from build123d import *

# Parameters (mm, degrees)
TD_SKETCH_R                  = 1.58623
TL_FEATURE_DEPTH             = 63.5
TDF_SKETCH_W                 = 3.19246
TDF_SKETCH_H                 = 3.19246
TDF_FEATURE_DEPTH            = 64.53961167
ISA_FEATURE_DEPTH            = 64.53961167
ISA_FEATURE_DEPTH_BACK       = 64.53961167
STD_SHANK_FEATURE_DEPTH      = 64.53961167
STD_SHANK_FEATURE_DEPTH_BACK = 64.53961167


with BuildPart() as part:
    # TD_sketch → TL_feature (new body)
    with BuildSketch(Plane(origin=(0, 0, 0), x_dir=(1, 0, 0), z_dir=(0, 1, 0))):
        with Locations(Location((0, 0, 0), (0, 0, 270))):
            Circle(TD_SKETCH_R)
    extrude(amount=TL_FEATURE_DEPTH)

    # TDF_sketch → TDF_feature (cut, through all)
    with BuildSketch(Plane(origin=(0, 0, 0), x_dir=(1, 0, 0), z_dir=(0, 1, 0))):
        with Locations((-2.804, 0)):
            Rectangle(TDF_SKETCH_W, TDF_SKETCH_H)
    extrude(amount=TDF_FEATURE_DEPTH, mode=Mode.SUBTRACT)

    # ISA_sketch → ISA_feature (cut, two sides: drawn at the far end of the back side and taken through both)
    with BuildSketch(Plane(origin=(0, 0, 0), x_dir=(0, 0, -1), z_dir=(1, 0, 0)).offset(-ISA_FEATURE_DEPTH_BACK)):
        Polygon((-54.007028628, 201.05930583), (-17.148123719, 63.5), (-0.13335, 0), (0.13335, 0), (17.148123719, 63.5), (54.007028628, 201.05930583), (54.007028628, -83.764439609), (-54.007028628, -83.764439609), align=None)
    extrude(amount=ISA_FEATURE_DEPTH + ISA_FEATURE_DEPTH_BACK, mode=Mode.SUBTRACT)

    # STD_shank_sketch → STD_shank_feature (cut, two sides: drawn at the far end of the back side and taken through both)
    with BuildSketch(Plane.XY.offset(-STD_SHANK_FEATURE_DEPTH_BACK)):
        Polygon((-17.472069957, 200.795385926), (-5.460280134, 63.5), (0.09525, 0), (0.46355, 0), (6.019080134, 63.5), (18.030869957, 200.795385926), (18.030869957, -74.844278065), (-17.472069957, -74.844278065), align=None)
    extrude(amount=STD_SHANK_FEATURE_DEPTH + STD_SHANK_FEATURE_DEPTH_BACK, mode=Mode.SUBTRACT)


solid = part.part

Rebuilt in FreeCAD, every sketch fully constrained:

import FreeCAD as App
import Part
import Sketcher
Q = App.Units.Quantity


def add_polygon(sketch, points):
    """Adds a closed chain of lines whose ends are joined by coincident constraints."""
    first, n = sketch.GeometryCount, len(points)
    for a, b in zip(points, points[1:] + points[:1]):
        sketch.addGeometry(Part.LineSegment(App.Vector(*a, 0), App.Vector(*b, 0)), False)
    for i in range(n):
        sketch.addConstraint(Sketcher.Constraint("Coincident", first + i, 2, first + (i + 1) % n, 1))

doc = App.newDocument("Part")
body = doc.addObject("PartDesign::Body", "Body")

# Sketch on XZ plane
sketch1 = body.newObject("Sketcher::SketchObject", "Sketch")
sketch1.AttachmentSupport = (doc.getObject("XZ_Plane"), [""])
sketch1.MapMode = "FlatFace"
sketch1.addGeometry(Part.Circle(App.Vector(0, 0, 0), App.Vector(0, 0, 1), 1.6), False)
sketch1.addConstraint(Sketcher.Constraint("Coincident", 0, 3, -1, 1))
sketch1.addConstraint(Sketcher.Constraint("Diameter", 0, Q("0.1249 in")))
pad1 = body.newObject("PartDesign::Pad", "Pad")
pad1.Profile = sketch1
pad1.Length = Q("2.5 in")
pad1.Reversed = True

# Sketch on XZ plane
sketch2 = body.newObject("Sketcher::SketchObject", "Sketch001")
sketch2.AttachmentSupport = (doc.getObject("XZ_Plane"), [""])
sketch2.MapMode = "FlatFace"
add_polygon(sketch2, [(-4.4, -1.6), (-4.4, 1.6), (-1.2, 1.6), (-1.2, -1.6)])  # lines 0-3
sketch2.addConstraint(Sketcher.Constraint("Vertical", 0))
sketch2.addConstraint(Sketcher.Constraint("Horizontal", 1))
sketch2.addConstraint(Sketcher.Constraint("Vertical", 2))
sketch2.addConstraint(Sketcher.Constraint("Horizontal", 3))
sketch2.addConstraint(Sketcher.Constraint("Equal", 3, 0))
sketch2.addConstraint(Sketcher.Constraint("DistanceX", 1, 1, 1, 2, 3.19246))
sketch2.addConstraint(Sketcher.Constraint("DistanceX", 0, 2, -1, 1, 4.40023))
sketch2.addConstraint(Sketcher.Constraint("DistanceY", -1, 1, 0, 2, 1.59623))
pocket1 = body.newObject("PartDesign::Pocket", "Pocket")
pocket1.Profile = sketch2
pocket1.Type = "ThroughAll"

# Sketch on YZ plane
sketch3 = body.newObject("Sketcher::SketchObject", "Sketch002")
sketch3.AttachmentSupport = (doc.getObject("YZ_Plane"), [""])
sketch3.MapMode = "FlatFace"
add_polygon(sketch3, [(63.5, 17.15), (201.06, 54.01), (-83.76, 54.01), (-83.76, -54.01), (201.06, -54.01), (63.5, -17.15), (0, -0.13), (0, 0.13)])  # lines 0-7
sketch3.addConstraint(Sketcher.Constraint("Horizontal", 1))
sketch3.addConstraint(Sketcher.Constraint("Vertical", 2))
sketch3.addConstraint(Sketcher.Constraint("Horizontal", 3))
sketch3.addConstraint(Sketcher.Constraint("Vertical", 6))
sketch3.addConstraint(Sketcher.Constraint("Symmetric", 5, 2, 6, 2, -1, 1))
sketch3.addConstraint(Sketcher.Constraint("Symmetric", 0, 2, 3, 2, -1))
sketch3.addConstraint(Sketcher.Constraint("Symmetric", 4, 2, 7, 2, -1))
sketch3.addConstraint(Sketcher.Constraint("Parallel", 4, 5))
sketch3.addConstraint(Sketcher.Constraint("Angle", 0, Q("15 deg")))
sketch3.addConstraint(Sketcher.Constraint("DistanceX", -1, 1, 4, 2, Q("2.5 in")))
sketch3.addConstraint(Sketcher.Constraint("DistanceY", 6, 1, 6, 2, Q("0.0105 in")))
sketch3.addConstraint(Sketcher.Constraint("DistanceX", 1, 2, 1, 1, 284.823745))
sketch3.addConstraint(Sketcher.Constraint("DistanceY", 2, 2, 2, 1, 108.014057))
pocket2 = body.newObject("PartDesign::Pocket", "Pocket001")
pocket2.Profile = sketch3
pocket2.Type = "ThroughAll"
pocket2.Midplane = True

# Sketch on XY plane
sketch4 = body.newObject("Sketcher::SketchObject", "Sketch003")
sketch4.AttachmentSupport = (doc.getObject("XY_Plane"), [""])
sketch4.MapMode = "FlatFace"
add_polygon(sketch4, [(-5.46, 63.5), (-17.47, 200.8), (-17.47, -74.84), (18.03, -74.84), (18.03, 200.8), (6.02, 63.5), (0.46, 0), (0.1, 0)])  # lines 0-7
sketch4.addConstraint(Sketcher.Constraint("Vertical", 1))
sketch4.addConstraint(Sketcher.Constraint("Horizontal", 2))
sketch4.addConstraint(Sketcher.Constraint("Vertical", 3))
sketch4.addConstraint(Sketcher.Constraint("Horizontal", 6))
sketch4.addConstraint(Sketcher.Constraint("PointOnObject", 5, 2, -1))
sketch4.addConstraint(Sketcher.Constraint("Parallel", 4, 5))
sketch4.addConstraint(Sketcher.Constraint("Parallel", 0, 7))
sketch4.addConstraint(Sketcher.Constraint("Horizontal", 0, 2, 3, 2))
sketch4.addConstraint(Sketcher.Constraint("Horizontal", 4, 2, 7, 2))
sketch4.addConstraint(Sketcher.Constraint("Equal", 0, 4))
sketch4.addConstraint(Sketcher.Constraint("Angle", 0, Q("95 deg")))
sketch4.addConstraint(Sketcher.Constraint("DistanceY", -1, 1, 4, 2, Q("2.5 in")))
sketch4.addConstraint(Sketcher.Constraint("DistanceX", 6, 2, 6, 1, Q("0.0145 in")))
sketch4.addConstraint(Sketcher.Constraint("DistanceX", 2, 1, 2, 2, 35.50294))
sketch4.addConstraint(Sketcher.Constraint("DistanceY", 1, 2, 1, 1, 275.639664))
sketch4.addConstraint(Sketcher.Constraint("DistanceX", 0, 2, -1, 1, 17.47207))
pocket3 = body.newObject("PartDesign::Pocket", "Pocket002")
pocket3.Profile = sketch4
pocket3.Type = "ThroughAll"
pocket3.Midplane = True

doc.recompute()
